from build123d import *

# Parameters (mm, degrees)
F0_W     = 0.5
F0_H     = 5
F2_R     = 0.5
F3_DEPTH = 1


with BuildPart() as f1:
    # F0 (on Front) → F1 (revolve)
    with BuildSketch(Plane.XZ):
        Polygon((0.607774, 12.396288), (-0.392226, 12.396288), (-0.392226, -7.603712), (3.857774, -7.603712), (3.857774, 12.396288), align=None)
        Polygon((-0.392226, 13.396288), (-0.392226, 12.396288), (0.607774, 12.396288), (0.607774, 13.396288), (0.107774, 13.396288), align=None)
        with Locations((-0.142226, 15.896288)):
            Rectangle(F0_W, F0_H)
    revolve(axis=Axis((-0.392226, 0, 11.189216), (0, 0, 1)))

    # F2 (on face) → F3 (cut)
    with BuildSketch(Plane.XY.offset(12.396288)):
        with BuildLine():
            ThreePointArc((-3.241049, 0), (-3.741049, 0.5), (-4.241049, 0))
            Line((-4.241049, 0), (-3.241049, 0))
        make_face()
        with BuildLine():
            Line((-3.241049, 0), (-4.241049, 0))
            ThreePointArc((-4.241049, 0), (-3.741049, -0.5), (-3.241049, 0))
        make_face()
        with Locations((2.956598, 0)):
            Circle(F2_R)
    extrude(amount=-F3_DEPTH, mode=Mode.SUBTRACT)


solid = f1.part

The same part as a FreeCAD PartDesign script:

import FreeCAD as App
import Part
import Sketcher
Q = App.Units.Quantity

doc = App.newDocument("Part")
body = doc.addObject("PartDesign::Body", "Body")

sketch1 = body.newObject("Sketcher::SketchObject", "Sketch")
sketch1.AttachmentSupport = (doc.getObject("XZ_Plane"), [""])
sketch1.MapMode = "FlatFace"
sketch1.addGeometry(Part.LineSegment(App.Vector(-0.392226, -7.603712, 0), App.Vector(3.857774, -7.603712, 0)), False)
sketch1.addGeometry(Part.LineSegment(App.Vector(3.857774, -7.603712, 0), App.Vector(3.857774, 12.396288, 0)), False)
sketch1.addGeometry(Part.LineSegment(App.Vector(3.857774, 12.396288, 0), App.Vector(0.607774, 12.396288, 0)), False)
sketch1.addGeometry(Part.LineSegment(App.Vector(0.607774, 12.396288, 0), App.Vector(0.607774, 13.396288, 0)), False)
sketch1.addGeometry(Part.LineSegment(App.Vector(0.607774, 13.396288, 0), App.Vector(0.107774, 13.396288, 0)), False)
sketch1.addGeometry(Part.LineSegment(App.Vector(0.107774, 13.396288, 0), App.Vector(0.107774, 18.396288, 0)), False)
sketch1.addGeometry(Part.LineSegment(App.Vector(0.107774, 18.396288, 0), App.Vector(-0.392226, 18.396288, 0)), False)
sketch1.addGeometry(Part.LineSegment(App.Vector(-0.392226, 18.396288, 0), App.Vector(-0.392226, -7.603712, 0)), False)
sketch1.addGeometry(Part.LineSegment(App.Vector(-0.392226, -7.603712, 0), App.Vector(-0.392226, 18.396288, 0)), True)
sketch1.addConstraint(Sketcher.Constraint("Coincident", 0, 2, 1, 1))
sketch1.addConstraint(Sketcher.Constraint("Coincident", 1, 2, 2, 1))
sketch1.addConstraint(Sketcher.Constraint("Coincident", 2, 2, 3, 1))
sketch1.addConstraint(Sketcher.Constraint("Coincident", 3, 2, 4, 1))
sketch1.addConstraint(Sketcher.Constraint("Coincident", 4, 2, 5, 1))
sketch1.addConstraint(Sketcher.Constraint("Coincident", 5, 2, 6, 1))
sketch1.addConstraint(Sketcher.Constraint("Coincident", 6, 2, 7, 1))
sketch1.addConstraint(Sketcher.Constraint("Coincident", 7, 2, 0, 1))
sketch1.addConstraint(Sketcher.Constraint("Horizontal", 0))
sketch1.addConstraint(Sketcher.Constraint("Vertical", 1))
sketch1.addConstraint(Sketcher.Constraint("Horizontal", 2))
sketch1.addConstraint(Sketcher.Constraint("Vertical", 3))
sketch1.addConstraint(Sketcher.Constraint("Horizontal", 4))
sketch1.addConstraint(Sketcher.Constraint("Vertical", 5))
sketch1.addConstraint(Sketcher.Constraint("Horizontal", 6))
sketch1.addConstraint(Sketcher.Constraint("Vertical", 7))
sketch1.addConstraint(Sketcher.Constraint("Vertical", 8))
sketch1.addConstraint(Sketcher.Constraint("Coincident", 8, 1, 7, 2))
sketch1.addConstraint(Sketcher.Constraint("Horizontal", 5, 2, 8, 2))
sketch1.addConstraint(Sketcher.Constraint("Equal", 4, 6))
sketch1.addConstraint(Sketcher.Constraint("DistanceY", 1, 1, 1, 2, Q("20 mm")))
sketch1.addConstraint(Sketcher.Constraint("DistanceY", 3, 1, 3, 2, Q("1 mm")))
sketch1.addConstraint(Sketcher.Constraint("DistanceY", 5, 1, 5, 2, Q("5 mm")))
sketch1.addConstraint(Sketcher.Constraint("DistanceX", 4, 2, 4, 1, Q("0.5 mm")))
sketch1.addConstraint(Sketcher.Constraint("DistanceX", 0, 1, 0, 2, Q("4.25 mm")))
sketch1.addConstraint(Sketcher.Constraint("DistanceY", 0, 2, -1, 1, Q("7.603712 mm")))
sketch1.addConstraint(Sketcher.Constraint("DistanceX", -1, 1, 0, 2, Q("3.857774 mm")))
revolution = body.newObject("PartDesign::Revolution", "Revolution")
revolution.Profile = sketch1
revolution.ReferenceAxis = (sketch1, ["Axis0"])
revolution.Angle = 360

sketch2 = body.newObject("Sketcher::SketchObject", "Sketch001")
sketch2.AttachmentSupport = (doc.getObject("XY_Plane"), [""])
sketch2.MapMode = "FlatFace"
sketch2.AttachmentOffset = App.Placement(App.Vector(0, 0, 12.396288), App.Rotation())
sketch2.addGeometry(Part.Circle(App.Vector(-3.741049, 0, 0), App.Vector(0, 0, 1), 0.5), False)
sketch2.addGeometry(Part.Circle(App.Vector(2.956598, 0, 0), App.Vector(0, 0, 1), 0.5), False)
sketch2.addConstraint(Sketcher.Constraint("Equal", 0, 1))
sketch2.addConstraint(Sketcher.Constraint("PointOnObject", 0, 3, -1))
sketch2.addConstraint(Sketcher.Constraint("PointOnObject", 1, 3, -1))
sketch2.addConstraint(Sketcher.Constraint("Diameter", 0, Q("1 mm")))
sketch2.addConstraint(Sketcher.Constraint("DistanceX", -1, 1, 1, 3, Q("2.956598 mm")))
sketch2.addConstraint(Sketcher.Constraint("DistanceX", 0, 3, -1, 1, Q("3.741049 mm")))
pocket1 = body.newObject("PartDesign::Pocket", "Pocket")
pocket1.Profile = sketch2
pocket1.Length = 1

doc.recompute()
